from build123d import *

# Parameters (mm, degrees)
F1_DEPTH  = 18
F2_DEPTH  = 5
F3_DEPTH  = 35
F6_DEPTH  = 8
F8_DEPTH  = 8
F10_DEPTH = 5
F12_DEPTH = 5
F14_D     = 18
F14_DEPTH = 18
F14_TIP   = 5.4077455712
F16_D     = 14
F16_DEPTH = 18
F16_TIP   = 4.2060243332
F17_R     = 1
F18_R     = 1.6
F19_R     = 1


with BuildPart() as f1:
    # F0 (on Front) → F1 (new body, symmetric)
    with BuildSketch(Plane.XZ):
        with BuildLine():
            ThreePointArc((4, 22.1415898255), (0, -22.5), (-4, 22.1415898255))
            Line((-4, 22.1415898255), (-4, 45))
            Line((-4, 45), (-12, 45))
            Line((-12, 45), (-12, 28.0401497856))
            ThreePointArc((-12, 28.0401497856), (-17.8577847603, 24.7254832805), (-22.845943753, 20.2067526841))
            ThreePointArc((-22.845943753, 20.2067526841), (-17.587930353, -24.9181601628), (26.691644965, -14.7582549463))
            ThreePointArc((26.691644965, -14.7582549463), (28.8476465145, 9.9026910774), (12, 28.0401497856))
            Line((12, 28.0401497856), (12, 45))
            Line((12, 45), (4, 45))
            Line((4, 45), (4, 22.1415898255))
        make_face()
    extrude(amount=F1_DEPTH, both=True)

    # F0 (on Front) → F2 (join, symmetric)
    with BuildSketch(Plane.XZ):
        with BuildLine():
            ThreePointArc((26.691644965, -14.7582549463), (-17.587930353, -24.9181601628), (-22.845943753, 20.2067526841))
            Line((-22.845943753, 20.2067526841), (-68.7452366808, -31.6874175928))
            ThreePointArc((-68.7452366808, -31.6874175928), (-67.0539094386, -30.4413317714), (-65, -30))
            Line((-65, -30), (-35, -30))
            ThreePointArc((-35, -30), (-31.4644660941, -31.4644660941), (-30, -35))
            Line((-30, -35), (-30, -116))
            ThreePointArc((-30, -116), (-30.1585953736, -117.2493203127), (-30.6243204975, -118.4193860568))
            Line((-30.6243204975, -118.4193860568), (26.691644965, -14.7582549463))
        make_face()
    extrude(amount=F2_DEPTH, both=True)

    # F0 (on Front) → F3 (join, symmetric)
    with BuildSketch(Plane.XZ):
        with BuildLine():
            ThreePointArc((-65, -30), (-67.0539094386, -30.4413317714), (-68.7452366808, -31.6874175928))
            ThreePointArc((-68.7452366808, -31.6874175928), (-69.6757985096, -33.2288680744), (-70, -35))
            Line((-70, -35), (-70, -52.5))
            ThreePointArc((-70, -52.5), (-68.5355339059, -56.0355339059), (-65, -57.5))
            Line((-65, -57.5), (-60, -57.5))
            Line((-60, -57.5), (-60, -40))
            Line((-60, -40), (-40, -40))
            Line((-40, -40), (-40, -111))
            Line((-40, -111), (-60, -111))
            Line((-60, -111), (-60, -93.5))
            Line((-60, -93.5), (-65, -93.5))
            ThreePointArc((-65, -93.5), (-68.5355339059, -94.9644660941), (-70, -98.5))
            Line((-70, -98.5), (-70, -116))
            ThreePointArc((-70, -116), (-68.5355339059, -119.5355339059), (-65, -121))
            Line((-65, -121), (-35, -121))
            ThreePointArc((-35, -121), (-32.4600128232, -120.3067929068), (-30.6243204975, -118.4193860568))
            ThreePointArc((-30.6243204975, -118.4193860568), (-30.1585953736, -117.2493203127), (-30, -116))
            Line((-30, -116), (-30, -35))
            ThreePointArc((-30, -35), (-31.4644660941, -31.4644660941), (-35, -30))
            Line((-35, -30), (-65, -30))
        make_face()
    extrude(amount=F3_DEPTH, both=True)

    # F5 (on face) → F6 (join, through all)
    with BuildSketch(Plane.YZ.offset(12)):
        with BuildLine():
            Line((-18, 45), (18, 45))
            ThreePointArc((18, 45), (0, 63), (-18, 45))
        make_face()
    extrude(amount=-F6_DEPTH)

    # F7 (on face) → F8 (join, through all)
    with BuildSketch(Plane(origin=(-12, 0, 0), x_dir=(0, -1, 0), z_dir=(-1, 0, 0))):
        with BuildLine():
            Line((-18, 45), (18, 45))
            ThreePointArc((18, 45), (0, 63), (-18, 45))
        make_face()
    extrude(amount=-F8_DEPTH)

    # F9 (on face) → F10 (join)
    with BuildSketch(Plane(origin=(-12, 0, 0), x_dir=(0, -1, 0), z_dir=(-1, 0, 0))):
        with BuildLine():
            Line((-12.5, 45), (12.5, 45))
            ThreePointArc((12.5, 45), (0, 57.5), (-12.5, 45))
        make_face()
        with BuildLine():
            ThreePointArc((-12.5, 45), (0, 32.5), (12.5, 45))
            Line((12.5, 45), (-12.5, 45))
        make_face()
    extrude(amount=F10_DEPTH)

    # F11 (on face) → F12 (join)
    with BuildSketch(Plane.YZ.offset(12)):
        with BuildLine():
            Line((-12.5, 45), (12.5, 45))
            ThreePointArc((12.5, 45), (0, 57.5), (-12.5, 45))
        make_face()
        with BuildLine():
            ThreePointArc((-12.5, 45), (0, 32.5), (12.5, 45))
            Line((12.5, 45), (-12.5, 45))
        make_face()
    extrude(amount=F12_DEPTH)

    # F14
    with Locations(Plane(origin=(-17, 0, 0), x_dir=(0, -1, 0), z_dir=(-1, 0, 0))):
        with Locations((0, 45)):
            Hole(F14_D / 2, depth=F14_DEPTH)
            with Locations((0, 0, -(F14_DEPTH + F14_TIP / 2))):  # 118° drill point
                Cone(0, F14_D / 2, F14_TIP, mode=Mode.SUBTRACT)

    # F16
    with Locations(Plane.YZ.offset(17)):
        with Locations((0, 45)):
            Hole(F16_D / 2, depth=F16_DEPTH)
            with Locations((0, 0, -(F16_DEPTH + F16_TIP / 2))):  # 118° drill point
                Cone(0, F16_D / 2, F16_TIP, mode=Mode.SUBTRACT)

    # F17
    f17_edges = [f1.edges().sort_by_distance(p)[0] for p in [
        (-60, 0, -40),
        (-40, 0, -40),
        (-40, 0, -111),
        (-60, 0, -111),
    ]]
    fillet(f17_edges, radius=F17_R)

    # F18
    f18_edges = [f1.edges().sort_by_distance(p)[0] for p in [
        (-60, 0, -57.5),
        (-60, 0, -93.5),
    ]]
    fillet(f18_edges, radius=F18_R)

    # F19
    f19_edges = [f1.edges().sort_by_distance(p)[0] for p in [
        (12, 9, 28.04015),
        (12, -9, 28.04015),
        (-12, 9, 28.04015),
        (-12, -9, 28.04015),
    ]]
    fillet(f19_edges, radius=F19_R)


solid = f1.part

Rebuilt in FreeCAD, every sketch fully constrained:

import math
import FreeCAD as App
import Part
import Sketcher
Q = App.Units.Quantity


def edges_at(feature, points):
    """Names of the edges that pass closest to the given points."""
    edges = feature.Shape.Edges
    near = lambda p: min(range(len(edges)), key=lambda i: edges[i].distToShape(Part.Vertex(*p))[0])
    return sorted({f"Edge{near(p) + 1}" for p in points})

doc = App.newDocument("Part")
body = doc.addObject("PartDesign::Body", "Body")

# Sketch on XZ plane
sketch1 = body.newObject("Sketcher::SketchObject", "Sketch")
sketch1.AttachmentSupport = (doc.getObject("XZ_Plane"), [""])
sketch1.MapMode = "FlatFace"
sketch1.addGeometry(Part.ArcOfCircle(Part.Circle(App.Vector(0, 0, 0), App.Vector(0, 0, 1), 22), math.radians(100), math.radians(440)), False)
sketch1.addGeometry(Part.LineSegment(App.Vector(-4, 22, 0), App.Vector(-4, 45, 0)), False)
sketch1.addGeometry(Part.LineSegment(App.Vector(-4, 45, 0), App.Vector(-12, 45, 0)), False)
sketch1.addGeometry(Part.LineSegment(App.Vector(-12, 45, 0), App.Vector(-12, 28, 0)), False)
sketch1.addGeometry(Part.ArcOfCircle(Part.Circle(App.Vector(0, 0, 0), App.Vector(0, 0, 1), 31), math.radians(113), math.radians(139)), False)
sketch1.addGeometry(Part.ArcOfCircle(Part.Circle(App.Vector(0, 0, 0), App.Vector(0, 0, 1), 30), math.radians(139), math.radians(331)), False)
sketch1.addGeometry(Part.ArcOfCircle(Part.Circle(App.Vector(0, 0, 0), App.Vector(0, 0, 1), 30), math.radians(-29), math.radians(67)), False)
sketch1.addGeometry(Part.LineSegment(App.Vector(12, 28, 0), App.Vector(12, 45, 0)), False)
sketch1.addGeometry(Part.LineSegment(App.Vector(12, 45, 0), App.Vector(4, 45, 0)), False)
sketch1.addGeometry(Part.LineSegment(App.Vector(4, 45, 0), App.Vector(4, 22, 0)), False)
sketch1.addConstraint(Sketcher.Constraint("Coincident", 0, 1, 1, 1))
sketch1.addConstraint(Sketcher.Constraint("Coincident", 1, 2, 2, 1))
sketch1.addConstraint(Sketcher.Constraint("Coincident", 2, 2, 3, 1))
sketch1.addConstraint(Sketcher.Constraint("Coincident", 3, 2, 4, 1))
sketch1.addConstraint(Sketcher.Constraint("Tangent", 4, 2, 5, 1))
sketch1.addConstraint(Sketcher.Constraint("Tangent", 5, 2, 6, 1))
sketch1.addConstraint(Sketcher.Constraint("Coincident", 6, 2, 7, 1))
sketch1.addConstraint(Sketcher.Constraint("Coincident", 7, 2, 8, 1))
sketch1.addConstraint(Sketcher.Constraint("Coincident", 8, 2, 9, 1))
sketch1.addConstraint(Sketcher.Constraint("Coincident", 9, 2, 0, 2))
sketch1.addConstraint(Sketcher.Constraint("Vertical", 1))
sketch1.addConstraint(Sketcher.Constraint("Horizontal", 2))
sketch1.addConstraint(Sketcher.Constraint("Vertical", 3))
sketch1.addConstraint(Sketcher.Constraint("Vertical", 7))
sketch1.addConstraint(Sketcher.Constraint("Horizontal", 8))
sketch1.addConstraint(Sketcher.Constraint("Vertical", 9))
sketch1.addConstraint(Sketcher.Constraint("Coincident", 0, 3, -1, 1))
sketch1.addConstraint(Sketcher.Constraint("Coincident", 4, 3, -1, 1))
sketch1.addConstraint(Sketcher.Constraint("Coincident", 6, 3, -1, 1))
sketch1.addConstraint(Sketcher.Constraint("Symmetric", 2, 2, 7, 2, -2))
sketch1.addConstraint(Sketcher.Constraint("Horizontal", 0, 1, 9, 2))
sketch1.addConstraint(Sketcher.Constraint("Radius", 0, Q("22.5 mm")))
sketch1.addConstraint(Sketcher.Constraint("Radius", 4, Q("30.5 mm")))
sketch1.addConstraint(Sketcher.Constraint("DistanceX", 2, 2, 2, 1, Q("8 mm")))
sketch1.addConstraint(Sketcher.Constraint("DistanceX", 0, 1, -1, 1, Q("4 mm")))
sketch1.addConstraint(Sketcher.Constraint("DistanceY", -1, 1, 1, 2, Q("45 mm")))
sketch1.addConstraint(Sketcher.Constraint("DistanceX", 4, 2, -1, 1, Q("22.845944 mm")))
sketch1.addConstraint(Sketcher.Constraint("DistanceX", -1, 1, 5, 2, Q("26.691645 mm")))
pad1 = body.newObject("PartDesign::Pad", "Pad")
pad1.Profile = sketch1
pad1.Length = 36
pad1.Midplane = True

# Sketch on XZ plane
sketch2 = body.newObject("Sketcher::SketchObject", "Sketch001")
sketch2.AttachmentSupport = (doc.getObject("XZ_Plane"), [""])
sketch2.MapMode = "FlatFace"
sketch2.addGeometry(Part.ArcOfCircle(Part.Circle(App.Vector(0, 0, 0), App.Vector(0, 0, 1), 30.5), math.radians(139), math.radians(331)), False)
sketch2.addGeometry(Part.LineSegment(App.Vector(-22.8, 20.2, 0), App.Vector(-68.7, -31.7, 0)), False)
sketch2.addGeometry(Part.ArcOfCircle(Part.Circle(App.Vector(-65, -35, 0), App.Vector(0, 0, 1), 5), math.radians(90), math.radians(139)), False)
sketch2.addGeometry(Part.LineSegment(App.Vector(-65, -30, 0), App.Vector(-35, -30, 0)), False)
sketch2.addGeometry(Part.ArcOfCircle(Part.Circle(App.Vector(-35, -35, 0), App.Vector(0, 0, 1), 5), math.radians(0), math.radians(90)), False)
sketch2.addGeometry(Part.LineSegment(App.Vector(-30, -35, 0), App.Vector(-30, -116, 0)), False)
sketch2.addGeometry(Part.ArcOfCircle(Part.Circle(App.Vector(-35, -116, 0), App.Vector(0, 0, 1), 5), math.radians(-29), math.radians(0)), False)
sketch2.addGeometry(Part.LineSegment(App.Vector(-30.6, -118.4, 0), App.Vector(26.7, -14.8, 0)), False)
sketch2.addConstraint(Sketcher.Constraint("Tangent", 0, 1, 1, 1))
sketch2.addConstraint(Sketcher.Constraint("Tangent", 1, 2, 2, 2))
sketch2.addConstraint(Sketcher.Constraint("Tangent", 2, 1, 3, 1))
sketch2.addConstraint(Sketcher.Constraint("Tangent", 3, 2, 4, 2))
sketch2.addConstraint(Sketcher.Constraint("Tangent", 4, 1, 5, 1))
sketch2.addConstraint(Sketcher.Constraint("Tangent", 5, 2, 6, 2))
sketch2.addConstraint(Sketcher.Constraint("Tangent", 6, 1, 7, 1))
sketch2.addConstraint(Sketcher.Constraint("Tangent", 7, 2, 0, 2))
sketch2.addConstraint(Sketcher.Constraint("Horizontal", 3))
sketch2.addConstraint(Sketcher.Constraint("Vertical", 5))
sketch2.addConstraint(Sketcher.Constraint("Coincident", 0, 3, -1, 1))
sketch2.addConstraint(Sketcher.Constraint("Equal", 2, 4))
sketch2.addConstraint(Sketcher.Constraint("Equal", 4, 6))
sketch2.addConstraint(Sketcher.Constraint("Radius", 2, Q("5 mm")))
sketch2.addConstraint(Sketcher.Constraint("Radius", 0, Q("30.5 mm")))
sketch2.addConstraint(Sketcher.Constraint("DistanceX", 3, 1, 3, 2, Q("30 mm")))
sketch2.addConstraint(Sketcher.Constraint("DistanceY", 5, 2, 5, 1, Q("81 mm")))
sketch2.addConstraint(Sketcher.Constraint("DistanceX", 2, 3, -1, 1, Q("65 mm")))
sketch2.addConstraint(Sketcher.Constraint("DistanceY", 2, 3, -1, 1, Q("35 mm")))
pad2 = body.newObject("PartDesign::Pad", "Pad001")
pad2.Profile = sketch2
pad2.Length = 10
pad2.Midplane = True

# Sketch on XZ plane
sketch3 = body.newObject("Sketcher::SketchObject", "Sketch002")
sketch3.AttachmentSupport = (doc.getObject("XZ_Plane"), [""])
sketch3.MapMode = "FlatFace"
sketch3.addGeometry(Part.ArcOfCircle(Part.Circle(App.Vector(-65, -35, 0), App.Vector(0, 0, 1), 5), math.radians(90), math.radians(139)), False)
sketch3.addGeometry(Part.ArcOfCircle(Part.Circle(App.Vector(-65, -35, 0), App.Vector(0, 0, 1), 5), math.radians(139), math.radians(180)), False)
sketch3.addGeometry(Part.LineSegment(App.Vector(-70, -35, 0), App.Vector(-70, -52.5, 0)), False)
sketch3.addGeometry(Part.ArcOfCircle(Part.Circle(App.Vector(-65, -52.5, 0), App.Vector(0, 0, 1), 5), math.radians(180), math.radians(270)), False)
sketch3.addGeometry(Part.LineSegment(App.Vector(-65, -57.5, 0), App.Vector(-60, -57.5, 0)), False)
sketch3.addGeometry(Part.LineSegment(App.Vector(-60, -57.5, 0), App.Vector(-60, -40, 0)), False)
sketch3.addGeometry(Part.LineSegment(App.Vector(-60, -40, 0), App.Vector(-40, -40, 0)), False)
sketch3.addGeometry(Part.LineSegment(App.Vector(-40, -40, 0), App.Vector(-40, -111, 0)), False)
sketch3.addGeometry(Part.LineSegment(App.Vector(-40, -111, 0), App.Vector(-60, -111, 0)), False)
sketch3.addGeometry(Part.LineSegment(App.Vector(-60, -111, 0), App.Vector(-60, -93.5, 0)), False)
sketch3.addGeometry(Part.LineSegment(App.Vector(-60, -93.5, 0), App.Vector(-65, -93.5, 0)), False)
sketch3.addGeometry(Part.ArcOfCircle(Part.Circle(App.Vector(-65, -98.5, 0), App.Vector(0, 0, 1), 5), math.radians(90), math.radians(180)), False)
sketch3.addGeometry(Part.LineSegment(App.Vector(-70, -98.5, 0), App.Vector(-70, -116, 0)), False)
sketch3.addGeometry(Part.ArcOfCircle(Part.Circle(App.Vector(-65, -116, 0), App.Vector(0, 0, 1), 5), math.radians(180), math.radians(270)), False)
sketch3.addGeometry(Part.LineSegment(App.Vector(-65, -121, 0), App.Vector(-35, -121, 0)), False)
sketch3.addGeometry(Part.ArcOfCircle(Part.Circle(App.Vector(-35, -116, 0), App.Vector(0, 0, 1), 5), math.radians(-90), math.radians(-29)), False)
sketch3.addGeometry(Part.ArcOfCircle(Part.Circle(App.Vector(-35, -116, 0), App.Vector(0, 0, 1), 5), math.radians(-29), math.radians(0)), False)
sketch3.addGeometry(Part.LineSegment(App.Vector(-30, -116, 0), App.Vector(-30, -35, 0)), False)
sketch3.addGeometry(Part.ArcOfCircle(Part.Circle(App.Vector(-35, -35, 0), App.Vector(0, 0, 1), 5), math.radians(0), math.radians(90)), False)
sketch3.addGeometry(Part.LineSegment(App.Vector(-35, -30, 0), App.Vector(-65, -30, 0)), False)
sketch3.addConstraint(Sketcher.Constraint("Tangent", 0, 2, 1, 1))
sketch3.addConstraint(Sketcher.Constraint("Tangent", 1, 2, 2, 1))
sketch3.addConstraint(Sketcher.Constraint("Tangent", 2, 2, 3, 1))
sketch3.addConstraint(Sketcher.Constraint("Tangent", 3, 2, 4, 1))
sketch3.addConstraint(Sketcher.Constraint("Coincident", 4, 2, 5, 1))
sketch3.addConstraint(Sketcher.Constraint("Coincident", 5, 2, 6, 1))
sketch3.addConstraint(Sketcher.Constraint("Coincident", 6, 2, 7, 1))
sketch3.addConstraint(Sketcher.Constraint("Coincident", 7, 2, 8, 1))
sketch3.addConstraint(Sketcher.Constraint("Coincident", 8, 2, 9, 1))
sketch3.addConstraint(Sketcher.Constraint("Coincident", 9, 2, 10, 1))
sketch3.addConstraint(Sketcher.Constraint("Tangent", 10, 2, 11, 1))
sketch3.addConstraint(Sketcher.Constraint("Tangent", 11, 2, 12, 1))
sketch3.addConstraint(Sketcher.Constraint("Tangent", 12, 2, 13, 1))
sketch3.addConstraint(Sketcher.Constraint("Tangent", 13, 2, 14, 1))
sketch3.addConstraint(Sketcher.Constraint("Tangent", 14, 2, 15, 1))
sketch3.addConstraint(Sketcher.Constraint("Tangent", 15, 2, 16, 1))
sketch3.addConstraint(Sketcher.Constraint("Tangent", 16, 2, 17, 1))
sketch3.addConstraint(Sketcher.Constraint("Tangent", 17, 2, 18, 1))
sketch3.addConstraint(Sketcher.Constraint("Tangent", 18, 2, 19, 1))
sketch3.addConstraint(Sketcher.Constraint("Tangent", 19, 2, 0, 1))
sketch3.addConstraint(Sketcher.Constraint("Vertical", 2))
sketch3.addConstraint(Sketcher.Constraint("Horizontal", 4))
sketch3.addConstraint(Sketcher.Constraint("Vertical", 5))
sketch3.addConstraint(Sketcher.Constraint("Horizontal", 6))
sketch3.addConstraint(Sketcher.Constraint("Vertical", 7))
sketch3.addConstraint(Sketcher.Constraint("Horizontal", 8))
sketch3.addConstraint(Sketcher.Constraint("Vertical", 9))
sketch3.addConstraint(Sketcher.Constraint("Horizontal", 10))
sketch3.addConstraint(Sketcher.Constraint("Vertical", 12))
sketch3.addConstraint(Sketcher.Constraint("Horizontal", 14))
sketch3.addConstraint(Sketcher.Constraint("Vertical", 17))
sketch3.addConstraint(Sketcher.Constraint("Horizontal", 19))
sketch3.addConstraint(Sketcher.Constraint("Equal", 0, 1))
sketch3.addConstraint(Sketcher.Constraint("Equal", 1, 3))
sketch3.addConstraint(Sketcher.Constraint("Equal", 3, 11))
sketch3.addConstraint(Sketcher.Constraint("Equal", 11, 13))
sketch3.addConstraint(Sketcher.Constraint("Equal", 13, 15))
sketch3.addConstraint(Sketcher.Constraint("Equal", 15, 16))
sketch3.addConstraint(Sketcher.Constraint("Equal", 16, 18))
sketch3.addConstraint(Sketcher.Constraint("Vertical", 3, 3, 11, 3))
sketch3.addConstraint(Sketcher.Constraint("Vertical", 5, 2, 8, 2))
sketch3.addConstraint(Sketcher.Constraint("Equal", 2, 5))
sketch3.addConstraint(Sketcher.Constraint("Equal", 5, 9))
sketch3.addConstraint(Sketcher.Constraint("Equal", 9, 12))
sketch3.addConstraint(Sketcher.Constraint("Radius", 0, Q("5 mm")))
sketch3.addConstraint(Sketcher.Constraint("DistanceX", 4, 1, 4, 2, Q("5 mm")))
sketch3.addConstraint(Sketcher.Constraint("DistanceX", 6, 1, 6, 2, Q("20 mm")))
sketch3.addConstraint(Sketcher.Constraint("DistanceX", 14, 1, 14, 2, Q("30 mm")))
sketch3.addConstraint(Sketcher.Constraint("DistanceY", 7, 2, 7, 1, Q("71 mm")))
sketch3.addConstraint(Sketcher.Constraint("DistanceY", 2, 2, 2, 1, Q("17.5 mm")))
sketch3.addConstraint(Sketcher.Constraint("DistanceX", 0, 3, -1, 1, Q("65 mm")))
sketch3.addConstraint(Sketcher.Constraint("DistanceY", 0, 3, -1, 1, Q("35 mm")))
sketch3.addConstraint(Sketcher.Constraint("DistanceX", 15, 2, -1, 1, Q("30.62432 mm")))
sketch3.addConstraint(Sketcher.Constraint("DistanceX", 0, 2, -1, 1, Q("68.745237 mm")))
pad3 = body.newObject("PartDesign::Pad", "Pad002")
pad3.Profile = sketch3
pad3.Length = 70
pad3.Midplane = True

# Sketch on YZ plane
sketch4 = body.newObject("Sketcher::SketchObject", "Sketch003")
sketch4.AttachmentSupport = (doc.getObject("YZ_Plane"), [""])
sketch4.MapMode = "FlatFace"
sketch4.AttachmentOffset = App.Placement(App.Vector(0, 0, 12), App.Rotation())
sketch4.addGeometry(Part.LineSegment(App.Vector(-18, 45, 0), App.Vector(18, 45, 0)), False)
sketch4.addGeometry(Part.ArcOfCircle(Part.Circle(App.Vector(0, 45, 0), App.Vector(0, 0, 1), 18), math.radians(0), math.radians(180)), False)
sketch4.addConstraint(Sketcher.Constraint("Coincident", 0, 1, 1, 2))
sketch4.addConstraint(Sketcher.Constraint("Coincident", 1, 1, 0, 2))
sketch4.addConstraint(Sketcher.Constraint("Horizontal", 0))
sketch4.addConstraint(Sketcher.Constraint("PointOnObject", 1, 3, -2))
sketch4.addConstraint(Sketcher.Constraint("Horizontal", 1, 3, 0, 1))
sketch4.addConstraint(Sketcher.Constraint("Radius", 1, Q("18 mm")))
sketch4.addConstraint(Sketcher.Constraint("DistanceY", -1, 1, 1, 3, Q("45 mm")))
pad4 = body.newObject("PartDesign::Pad", "Pad003")
pad4.Profile = sketch4
pad4.Length = 8
pad4.Reversed = True

# Sketch on YZ plane
sketch5 = body.newObject("Sketcher::SketchObject", "Sketch004")
sketch5.AttachmentSupport = (doc.getObject("YZ_Plane"), [""])
sketch5.MapMode = "FlatFace"
sketch5.AttachmentOffset = App.Placement(App.Vector(0, 0, -12), App.Rotation())
sketch5.addGeometry(Part.LineSegment(App.Vector(18, 45, 0), App.Vector(-18, 45, 0)), False)
sketch5.addGeometry(Part.ArcOfCircle(Part.Circle(App.Vector(0, 45, 0), App.Vector(0, 0, 1), 18), math.radians(0), math.radians(180)), False)
sketch5.addConstraint(Sketcher.Constraint("Coincident", 0, 1, 1, 1))
sketch5.addConstraint(Sketcher.Constraint("Coincident", 1, 2, 0, 2))
sketch5.addConstraint(Sketcher.Constraint("Horizontal", 0))
sketch5.addConstraint(Sketcher.Constraint("PointOnObject", 1, 3, -2))
sketch5.addConstraint(Sketcher.Constraint("Horizontal", 1, 3, 0, 1))
sketch5.addConstraint(Sketcher.Constraint("Radius", 1, Q("18 mm")))
sketch5.addConstraint(Sketcher.Constraint("DistanceY", -1, 1, 1, 3, Q("45 mm")))
pad5 = body.newObject("PartDesign::Pad", "Pad004")
pad5.Profile = sketch5
pad5.Length = 8

# Sketch on YZ plane
sketch6 = body.newObject("Sketcher::SketchObject", "Sketch005")
sketch6.AttachmentSupport = (doc.getObject("YZ_Plane"), [""])
sketch6.MapMode = "FlatFace"
sketch6.AttachmentOffset = App.Placement(App.Vector(0, 0, -12), App.Rotation())
sketch6.addGeometry(Part.Circle(App.Vector(0, 45, 0), App.Vector(0, 0, 1), 12), False)
sketch6.addConstraint(Sketcher.Constraint("PointOnObject", 0, 3, -2))
sketch6.addConstraint(Sketcher.Constraint("Diameter", 0, Q("25 mm")))
sketch6.addConstraint(Sketcher.Constraint("DistanceY", -1, 1, 0, 3, Q("45 mm")))
pad6 = body.newObject("PartDesign::Pad", "Pad005")
pad6.Profile = sketch6
pad6.Length = 5
pad6.Reversed = True

# Sketch on YZ plane
sketch7 = body.newObject("Sketcher::SketchObject", "Sketch006")
sketch7.AttachmentSupport = (doc.getObject("YZ_Plane"), [""])
sketch7.MapMode = "FlatFace"
sketch7.AttachmentOffset = App.Placement(App.Vector(0, 0, 12), App.Rotation())
sketch7.addGeometry(Part.Circle(App.Vector(0, 45, 0), App.Vector(0, 0, 1), 12), False)
sketch7.addConstraint(Sketcher.Constraint("PointOnObject", 0, 3, -2))
sketch7.addConstraint(Sketcher.Constraint("Diameter", 0, Q("25 mm")))
sketch7.addConstraint(Sketcher.Constraint("DistanceY", -1, 1, 0, 3, Q("45 mm")))
pad7 = body.newObject("PartDesign::Pad", "Pad006")
pad7.Profile = sketch7
pad7.Length = 5

# Sketch on YZ plane
sketch8 = body.newObject("Sketcher::SketchObject", "Sketch007")
sketch8.AttachmentSupport = (doc.getObject("YZ_Plane"), [""])
sketch8.MapMode = "FlatFace"
sketch8.AttachmentOffset = App.Placement(App.Vector(0, 0, -17), App.Rotation())
sketch8.addGeometry(Part.Circle(App.Vector(0, 45, 0), App.Vector(0, 0, 1), 9), False)
sketch8.addConstraint(Sketcher.Constraint("PointOnObject", 0, 3, -2))
sketch8.addConstraint(Sketcher.Constraint("Diameter", 0, Q("18 mm")))
sketch8.addConstraint(Sketcher.Constraint("DistanceY", -1, 1, 0, 3, Q("45 mm")))
doc.recompute()
hole = body.newObject("PartDesign::Hole", "Hole")
hole.Profile = sketch8
hole.ThreadType = "None"
hole.Diameter = 18
hole.DepthType = "Dimension"
hole.Depth = 18
hole.DrillPoint = "Angled"
hole.DrillPointAngle = 118
hole.Reversed = True

# Sketch on YZ plane
sketch9 = body.newObject("Sketcher::SketchObject", "Sketch008")
sketch9.AttachmentSupport = (doc.getObject("YZ_Plane"), [""])
sketch9.MapMode = "FlatFace"
sketch9.AttachmentOffset = App.Placement(App.Vector(0, 0, 17), App.Rotation())
sketch9.addGeometry(Part.Circle(App.Vector(0, 45, 0), App.Vector(0, 0, 1), 7), False)
sketch9.addConstraint(Sketcher.Constraint("PointOnObject", 0, 3, -2))
sketch9.addConstraint(Sketcher.Constraint("Diameter", 0, Q("14 mm")))
sketch9.addConstraint(Sketcher.Constraint("DistanceY", -1, 1, 0, 3, Q("45 mm")))
doc.recompute()
hole2 = body.newObject("PartDesign::Hole", "Hole001")
hole2.Profile = sketch9
hole2.ThreadType = "None"
hole2.Diameter = 14
hole2.DepthType = "Dimension"
hole2.Depth = 18
hole2.DrillPoint = "Angled"
hole2.DrillPointAngle = 118
doc.recompute()

fillet = body.newObject("PartDesign::Fillet", "Fillet")
fillet.Base = (hole2, edges_at(hole2, [
    (-60, 0, -40),
    (-40, 0, -40),
    (-40, 0, -111),
    (-60, 0, -111),
]))
fillet.Radius = 1
doc.recompute()

fillet2 = body.newObject("PartDesign::Fillet", "Fillet001")
fillet2.Base = (fillet, edges_at(fillet, [(-60, 0, -57.5), (-60, 0, -93.5)]))
fillet2.Radius = 1.6
doc.recompute()

fillet3 = body.newObject("PartDesign::Fillet", "Fillet002")
fillet3.Base = (fillet2, edges_at(fillet2, [
    (12, 0, 28.04),
    (12, 0, 28.04),
    (-12, 0, 28.04),
    (-12, 0, 28.04),
]))
fillet3.Radius = 1

doc.recompute()
